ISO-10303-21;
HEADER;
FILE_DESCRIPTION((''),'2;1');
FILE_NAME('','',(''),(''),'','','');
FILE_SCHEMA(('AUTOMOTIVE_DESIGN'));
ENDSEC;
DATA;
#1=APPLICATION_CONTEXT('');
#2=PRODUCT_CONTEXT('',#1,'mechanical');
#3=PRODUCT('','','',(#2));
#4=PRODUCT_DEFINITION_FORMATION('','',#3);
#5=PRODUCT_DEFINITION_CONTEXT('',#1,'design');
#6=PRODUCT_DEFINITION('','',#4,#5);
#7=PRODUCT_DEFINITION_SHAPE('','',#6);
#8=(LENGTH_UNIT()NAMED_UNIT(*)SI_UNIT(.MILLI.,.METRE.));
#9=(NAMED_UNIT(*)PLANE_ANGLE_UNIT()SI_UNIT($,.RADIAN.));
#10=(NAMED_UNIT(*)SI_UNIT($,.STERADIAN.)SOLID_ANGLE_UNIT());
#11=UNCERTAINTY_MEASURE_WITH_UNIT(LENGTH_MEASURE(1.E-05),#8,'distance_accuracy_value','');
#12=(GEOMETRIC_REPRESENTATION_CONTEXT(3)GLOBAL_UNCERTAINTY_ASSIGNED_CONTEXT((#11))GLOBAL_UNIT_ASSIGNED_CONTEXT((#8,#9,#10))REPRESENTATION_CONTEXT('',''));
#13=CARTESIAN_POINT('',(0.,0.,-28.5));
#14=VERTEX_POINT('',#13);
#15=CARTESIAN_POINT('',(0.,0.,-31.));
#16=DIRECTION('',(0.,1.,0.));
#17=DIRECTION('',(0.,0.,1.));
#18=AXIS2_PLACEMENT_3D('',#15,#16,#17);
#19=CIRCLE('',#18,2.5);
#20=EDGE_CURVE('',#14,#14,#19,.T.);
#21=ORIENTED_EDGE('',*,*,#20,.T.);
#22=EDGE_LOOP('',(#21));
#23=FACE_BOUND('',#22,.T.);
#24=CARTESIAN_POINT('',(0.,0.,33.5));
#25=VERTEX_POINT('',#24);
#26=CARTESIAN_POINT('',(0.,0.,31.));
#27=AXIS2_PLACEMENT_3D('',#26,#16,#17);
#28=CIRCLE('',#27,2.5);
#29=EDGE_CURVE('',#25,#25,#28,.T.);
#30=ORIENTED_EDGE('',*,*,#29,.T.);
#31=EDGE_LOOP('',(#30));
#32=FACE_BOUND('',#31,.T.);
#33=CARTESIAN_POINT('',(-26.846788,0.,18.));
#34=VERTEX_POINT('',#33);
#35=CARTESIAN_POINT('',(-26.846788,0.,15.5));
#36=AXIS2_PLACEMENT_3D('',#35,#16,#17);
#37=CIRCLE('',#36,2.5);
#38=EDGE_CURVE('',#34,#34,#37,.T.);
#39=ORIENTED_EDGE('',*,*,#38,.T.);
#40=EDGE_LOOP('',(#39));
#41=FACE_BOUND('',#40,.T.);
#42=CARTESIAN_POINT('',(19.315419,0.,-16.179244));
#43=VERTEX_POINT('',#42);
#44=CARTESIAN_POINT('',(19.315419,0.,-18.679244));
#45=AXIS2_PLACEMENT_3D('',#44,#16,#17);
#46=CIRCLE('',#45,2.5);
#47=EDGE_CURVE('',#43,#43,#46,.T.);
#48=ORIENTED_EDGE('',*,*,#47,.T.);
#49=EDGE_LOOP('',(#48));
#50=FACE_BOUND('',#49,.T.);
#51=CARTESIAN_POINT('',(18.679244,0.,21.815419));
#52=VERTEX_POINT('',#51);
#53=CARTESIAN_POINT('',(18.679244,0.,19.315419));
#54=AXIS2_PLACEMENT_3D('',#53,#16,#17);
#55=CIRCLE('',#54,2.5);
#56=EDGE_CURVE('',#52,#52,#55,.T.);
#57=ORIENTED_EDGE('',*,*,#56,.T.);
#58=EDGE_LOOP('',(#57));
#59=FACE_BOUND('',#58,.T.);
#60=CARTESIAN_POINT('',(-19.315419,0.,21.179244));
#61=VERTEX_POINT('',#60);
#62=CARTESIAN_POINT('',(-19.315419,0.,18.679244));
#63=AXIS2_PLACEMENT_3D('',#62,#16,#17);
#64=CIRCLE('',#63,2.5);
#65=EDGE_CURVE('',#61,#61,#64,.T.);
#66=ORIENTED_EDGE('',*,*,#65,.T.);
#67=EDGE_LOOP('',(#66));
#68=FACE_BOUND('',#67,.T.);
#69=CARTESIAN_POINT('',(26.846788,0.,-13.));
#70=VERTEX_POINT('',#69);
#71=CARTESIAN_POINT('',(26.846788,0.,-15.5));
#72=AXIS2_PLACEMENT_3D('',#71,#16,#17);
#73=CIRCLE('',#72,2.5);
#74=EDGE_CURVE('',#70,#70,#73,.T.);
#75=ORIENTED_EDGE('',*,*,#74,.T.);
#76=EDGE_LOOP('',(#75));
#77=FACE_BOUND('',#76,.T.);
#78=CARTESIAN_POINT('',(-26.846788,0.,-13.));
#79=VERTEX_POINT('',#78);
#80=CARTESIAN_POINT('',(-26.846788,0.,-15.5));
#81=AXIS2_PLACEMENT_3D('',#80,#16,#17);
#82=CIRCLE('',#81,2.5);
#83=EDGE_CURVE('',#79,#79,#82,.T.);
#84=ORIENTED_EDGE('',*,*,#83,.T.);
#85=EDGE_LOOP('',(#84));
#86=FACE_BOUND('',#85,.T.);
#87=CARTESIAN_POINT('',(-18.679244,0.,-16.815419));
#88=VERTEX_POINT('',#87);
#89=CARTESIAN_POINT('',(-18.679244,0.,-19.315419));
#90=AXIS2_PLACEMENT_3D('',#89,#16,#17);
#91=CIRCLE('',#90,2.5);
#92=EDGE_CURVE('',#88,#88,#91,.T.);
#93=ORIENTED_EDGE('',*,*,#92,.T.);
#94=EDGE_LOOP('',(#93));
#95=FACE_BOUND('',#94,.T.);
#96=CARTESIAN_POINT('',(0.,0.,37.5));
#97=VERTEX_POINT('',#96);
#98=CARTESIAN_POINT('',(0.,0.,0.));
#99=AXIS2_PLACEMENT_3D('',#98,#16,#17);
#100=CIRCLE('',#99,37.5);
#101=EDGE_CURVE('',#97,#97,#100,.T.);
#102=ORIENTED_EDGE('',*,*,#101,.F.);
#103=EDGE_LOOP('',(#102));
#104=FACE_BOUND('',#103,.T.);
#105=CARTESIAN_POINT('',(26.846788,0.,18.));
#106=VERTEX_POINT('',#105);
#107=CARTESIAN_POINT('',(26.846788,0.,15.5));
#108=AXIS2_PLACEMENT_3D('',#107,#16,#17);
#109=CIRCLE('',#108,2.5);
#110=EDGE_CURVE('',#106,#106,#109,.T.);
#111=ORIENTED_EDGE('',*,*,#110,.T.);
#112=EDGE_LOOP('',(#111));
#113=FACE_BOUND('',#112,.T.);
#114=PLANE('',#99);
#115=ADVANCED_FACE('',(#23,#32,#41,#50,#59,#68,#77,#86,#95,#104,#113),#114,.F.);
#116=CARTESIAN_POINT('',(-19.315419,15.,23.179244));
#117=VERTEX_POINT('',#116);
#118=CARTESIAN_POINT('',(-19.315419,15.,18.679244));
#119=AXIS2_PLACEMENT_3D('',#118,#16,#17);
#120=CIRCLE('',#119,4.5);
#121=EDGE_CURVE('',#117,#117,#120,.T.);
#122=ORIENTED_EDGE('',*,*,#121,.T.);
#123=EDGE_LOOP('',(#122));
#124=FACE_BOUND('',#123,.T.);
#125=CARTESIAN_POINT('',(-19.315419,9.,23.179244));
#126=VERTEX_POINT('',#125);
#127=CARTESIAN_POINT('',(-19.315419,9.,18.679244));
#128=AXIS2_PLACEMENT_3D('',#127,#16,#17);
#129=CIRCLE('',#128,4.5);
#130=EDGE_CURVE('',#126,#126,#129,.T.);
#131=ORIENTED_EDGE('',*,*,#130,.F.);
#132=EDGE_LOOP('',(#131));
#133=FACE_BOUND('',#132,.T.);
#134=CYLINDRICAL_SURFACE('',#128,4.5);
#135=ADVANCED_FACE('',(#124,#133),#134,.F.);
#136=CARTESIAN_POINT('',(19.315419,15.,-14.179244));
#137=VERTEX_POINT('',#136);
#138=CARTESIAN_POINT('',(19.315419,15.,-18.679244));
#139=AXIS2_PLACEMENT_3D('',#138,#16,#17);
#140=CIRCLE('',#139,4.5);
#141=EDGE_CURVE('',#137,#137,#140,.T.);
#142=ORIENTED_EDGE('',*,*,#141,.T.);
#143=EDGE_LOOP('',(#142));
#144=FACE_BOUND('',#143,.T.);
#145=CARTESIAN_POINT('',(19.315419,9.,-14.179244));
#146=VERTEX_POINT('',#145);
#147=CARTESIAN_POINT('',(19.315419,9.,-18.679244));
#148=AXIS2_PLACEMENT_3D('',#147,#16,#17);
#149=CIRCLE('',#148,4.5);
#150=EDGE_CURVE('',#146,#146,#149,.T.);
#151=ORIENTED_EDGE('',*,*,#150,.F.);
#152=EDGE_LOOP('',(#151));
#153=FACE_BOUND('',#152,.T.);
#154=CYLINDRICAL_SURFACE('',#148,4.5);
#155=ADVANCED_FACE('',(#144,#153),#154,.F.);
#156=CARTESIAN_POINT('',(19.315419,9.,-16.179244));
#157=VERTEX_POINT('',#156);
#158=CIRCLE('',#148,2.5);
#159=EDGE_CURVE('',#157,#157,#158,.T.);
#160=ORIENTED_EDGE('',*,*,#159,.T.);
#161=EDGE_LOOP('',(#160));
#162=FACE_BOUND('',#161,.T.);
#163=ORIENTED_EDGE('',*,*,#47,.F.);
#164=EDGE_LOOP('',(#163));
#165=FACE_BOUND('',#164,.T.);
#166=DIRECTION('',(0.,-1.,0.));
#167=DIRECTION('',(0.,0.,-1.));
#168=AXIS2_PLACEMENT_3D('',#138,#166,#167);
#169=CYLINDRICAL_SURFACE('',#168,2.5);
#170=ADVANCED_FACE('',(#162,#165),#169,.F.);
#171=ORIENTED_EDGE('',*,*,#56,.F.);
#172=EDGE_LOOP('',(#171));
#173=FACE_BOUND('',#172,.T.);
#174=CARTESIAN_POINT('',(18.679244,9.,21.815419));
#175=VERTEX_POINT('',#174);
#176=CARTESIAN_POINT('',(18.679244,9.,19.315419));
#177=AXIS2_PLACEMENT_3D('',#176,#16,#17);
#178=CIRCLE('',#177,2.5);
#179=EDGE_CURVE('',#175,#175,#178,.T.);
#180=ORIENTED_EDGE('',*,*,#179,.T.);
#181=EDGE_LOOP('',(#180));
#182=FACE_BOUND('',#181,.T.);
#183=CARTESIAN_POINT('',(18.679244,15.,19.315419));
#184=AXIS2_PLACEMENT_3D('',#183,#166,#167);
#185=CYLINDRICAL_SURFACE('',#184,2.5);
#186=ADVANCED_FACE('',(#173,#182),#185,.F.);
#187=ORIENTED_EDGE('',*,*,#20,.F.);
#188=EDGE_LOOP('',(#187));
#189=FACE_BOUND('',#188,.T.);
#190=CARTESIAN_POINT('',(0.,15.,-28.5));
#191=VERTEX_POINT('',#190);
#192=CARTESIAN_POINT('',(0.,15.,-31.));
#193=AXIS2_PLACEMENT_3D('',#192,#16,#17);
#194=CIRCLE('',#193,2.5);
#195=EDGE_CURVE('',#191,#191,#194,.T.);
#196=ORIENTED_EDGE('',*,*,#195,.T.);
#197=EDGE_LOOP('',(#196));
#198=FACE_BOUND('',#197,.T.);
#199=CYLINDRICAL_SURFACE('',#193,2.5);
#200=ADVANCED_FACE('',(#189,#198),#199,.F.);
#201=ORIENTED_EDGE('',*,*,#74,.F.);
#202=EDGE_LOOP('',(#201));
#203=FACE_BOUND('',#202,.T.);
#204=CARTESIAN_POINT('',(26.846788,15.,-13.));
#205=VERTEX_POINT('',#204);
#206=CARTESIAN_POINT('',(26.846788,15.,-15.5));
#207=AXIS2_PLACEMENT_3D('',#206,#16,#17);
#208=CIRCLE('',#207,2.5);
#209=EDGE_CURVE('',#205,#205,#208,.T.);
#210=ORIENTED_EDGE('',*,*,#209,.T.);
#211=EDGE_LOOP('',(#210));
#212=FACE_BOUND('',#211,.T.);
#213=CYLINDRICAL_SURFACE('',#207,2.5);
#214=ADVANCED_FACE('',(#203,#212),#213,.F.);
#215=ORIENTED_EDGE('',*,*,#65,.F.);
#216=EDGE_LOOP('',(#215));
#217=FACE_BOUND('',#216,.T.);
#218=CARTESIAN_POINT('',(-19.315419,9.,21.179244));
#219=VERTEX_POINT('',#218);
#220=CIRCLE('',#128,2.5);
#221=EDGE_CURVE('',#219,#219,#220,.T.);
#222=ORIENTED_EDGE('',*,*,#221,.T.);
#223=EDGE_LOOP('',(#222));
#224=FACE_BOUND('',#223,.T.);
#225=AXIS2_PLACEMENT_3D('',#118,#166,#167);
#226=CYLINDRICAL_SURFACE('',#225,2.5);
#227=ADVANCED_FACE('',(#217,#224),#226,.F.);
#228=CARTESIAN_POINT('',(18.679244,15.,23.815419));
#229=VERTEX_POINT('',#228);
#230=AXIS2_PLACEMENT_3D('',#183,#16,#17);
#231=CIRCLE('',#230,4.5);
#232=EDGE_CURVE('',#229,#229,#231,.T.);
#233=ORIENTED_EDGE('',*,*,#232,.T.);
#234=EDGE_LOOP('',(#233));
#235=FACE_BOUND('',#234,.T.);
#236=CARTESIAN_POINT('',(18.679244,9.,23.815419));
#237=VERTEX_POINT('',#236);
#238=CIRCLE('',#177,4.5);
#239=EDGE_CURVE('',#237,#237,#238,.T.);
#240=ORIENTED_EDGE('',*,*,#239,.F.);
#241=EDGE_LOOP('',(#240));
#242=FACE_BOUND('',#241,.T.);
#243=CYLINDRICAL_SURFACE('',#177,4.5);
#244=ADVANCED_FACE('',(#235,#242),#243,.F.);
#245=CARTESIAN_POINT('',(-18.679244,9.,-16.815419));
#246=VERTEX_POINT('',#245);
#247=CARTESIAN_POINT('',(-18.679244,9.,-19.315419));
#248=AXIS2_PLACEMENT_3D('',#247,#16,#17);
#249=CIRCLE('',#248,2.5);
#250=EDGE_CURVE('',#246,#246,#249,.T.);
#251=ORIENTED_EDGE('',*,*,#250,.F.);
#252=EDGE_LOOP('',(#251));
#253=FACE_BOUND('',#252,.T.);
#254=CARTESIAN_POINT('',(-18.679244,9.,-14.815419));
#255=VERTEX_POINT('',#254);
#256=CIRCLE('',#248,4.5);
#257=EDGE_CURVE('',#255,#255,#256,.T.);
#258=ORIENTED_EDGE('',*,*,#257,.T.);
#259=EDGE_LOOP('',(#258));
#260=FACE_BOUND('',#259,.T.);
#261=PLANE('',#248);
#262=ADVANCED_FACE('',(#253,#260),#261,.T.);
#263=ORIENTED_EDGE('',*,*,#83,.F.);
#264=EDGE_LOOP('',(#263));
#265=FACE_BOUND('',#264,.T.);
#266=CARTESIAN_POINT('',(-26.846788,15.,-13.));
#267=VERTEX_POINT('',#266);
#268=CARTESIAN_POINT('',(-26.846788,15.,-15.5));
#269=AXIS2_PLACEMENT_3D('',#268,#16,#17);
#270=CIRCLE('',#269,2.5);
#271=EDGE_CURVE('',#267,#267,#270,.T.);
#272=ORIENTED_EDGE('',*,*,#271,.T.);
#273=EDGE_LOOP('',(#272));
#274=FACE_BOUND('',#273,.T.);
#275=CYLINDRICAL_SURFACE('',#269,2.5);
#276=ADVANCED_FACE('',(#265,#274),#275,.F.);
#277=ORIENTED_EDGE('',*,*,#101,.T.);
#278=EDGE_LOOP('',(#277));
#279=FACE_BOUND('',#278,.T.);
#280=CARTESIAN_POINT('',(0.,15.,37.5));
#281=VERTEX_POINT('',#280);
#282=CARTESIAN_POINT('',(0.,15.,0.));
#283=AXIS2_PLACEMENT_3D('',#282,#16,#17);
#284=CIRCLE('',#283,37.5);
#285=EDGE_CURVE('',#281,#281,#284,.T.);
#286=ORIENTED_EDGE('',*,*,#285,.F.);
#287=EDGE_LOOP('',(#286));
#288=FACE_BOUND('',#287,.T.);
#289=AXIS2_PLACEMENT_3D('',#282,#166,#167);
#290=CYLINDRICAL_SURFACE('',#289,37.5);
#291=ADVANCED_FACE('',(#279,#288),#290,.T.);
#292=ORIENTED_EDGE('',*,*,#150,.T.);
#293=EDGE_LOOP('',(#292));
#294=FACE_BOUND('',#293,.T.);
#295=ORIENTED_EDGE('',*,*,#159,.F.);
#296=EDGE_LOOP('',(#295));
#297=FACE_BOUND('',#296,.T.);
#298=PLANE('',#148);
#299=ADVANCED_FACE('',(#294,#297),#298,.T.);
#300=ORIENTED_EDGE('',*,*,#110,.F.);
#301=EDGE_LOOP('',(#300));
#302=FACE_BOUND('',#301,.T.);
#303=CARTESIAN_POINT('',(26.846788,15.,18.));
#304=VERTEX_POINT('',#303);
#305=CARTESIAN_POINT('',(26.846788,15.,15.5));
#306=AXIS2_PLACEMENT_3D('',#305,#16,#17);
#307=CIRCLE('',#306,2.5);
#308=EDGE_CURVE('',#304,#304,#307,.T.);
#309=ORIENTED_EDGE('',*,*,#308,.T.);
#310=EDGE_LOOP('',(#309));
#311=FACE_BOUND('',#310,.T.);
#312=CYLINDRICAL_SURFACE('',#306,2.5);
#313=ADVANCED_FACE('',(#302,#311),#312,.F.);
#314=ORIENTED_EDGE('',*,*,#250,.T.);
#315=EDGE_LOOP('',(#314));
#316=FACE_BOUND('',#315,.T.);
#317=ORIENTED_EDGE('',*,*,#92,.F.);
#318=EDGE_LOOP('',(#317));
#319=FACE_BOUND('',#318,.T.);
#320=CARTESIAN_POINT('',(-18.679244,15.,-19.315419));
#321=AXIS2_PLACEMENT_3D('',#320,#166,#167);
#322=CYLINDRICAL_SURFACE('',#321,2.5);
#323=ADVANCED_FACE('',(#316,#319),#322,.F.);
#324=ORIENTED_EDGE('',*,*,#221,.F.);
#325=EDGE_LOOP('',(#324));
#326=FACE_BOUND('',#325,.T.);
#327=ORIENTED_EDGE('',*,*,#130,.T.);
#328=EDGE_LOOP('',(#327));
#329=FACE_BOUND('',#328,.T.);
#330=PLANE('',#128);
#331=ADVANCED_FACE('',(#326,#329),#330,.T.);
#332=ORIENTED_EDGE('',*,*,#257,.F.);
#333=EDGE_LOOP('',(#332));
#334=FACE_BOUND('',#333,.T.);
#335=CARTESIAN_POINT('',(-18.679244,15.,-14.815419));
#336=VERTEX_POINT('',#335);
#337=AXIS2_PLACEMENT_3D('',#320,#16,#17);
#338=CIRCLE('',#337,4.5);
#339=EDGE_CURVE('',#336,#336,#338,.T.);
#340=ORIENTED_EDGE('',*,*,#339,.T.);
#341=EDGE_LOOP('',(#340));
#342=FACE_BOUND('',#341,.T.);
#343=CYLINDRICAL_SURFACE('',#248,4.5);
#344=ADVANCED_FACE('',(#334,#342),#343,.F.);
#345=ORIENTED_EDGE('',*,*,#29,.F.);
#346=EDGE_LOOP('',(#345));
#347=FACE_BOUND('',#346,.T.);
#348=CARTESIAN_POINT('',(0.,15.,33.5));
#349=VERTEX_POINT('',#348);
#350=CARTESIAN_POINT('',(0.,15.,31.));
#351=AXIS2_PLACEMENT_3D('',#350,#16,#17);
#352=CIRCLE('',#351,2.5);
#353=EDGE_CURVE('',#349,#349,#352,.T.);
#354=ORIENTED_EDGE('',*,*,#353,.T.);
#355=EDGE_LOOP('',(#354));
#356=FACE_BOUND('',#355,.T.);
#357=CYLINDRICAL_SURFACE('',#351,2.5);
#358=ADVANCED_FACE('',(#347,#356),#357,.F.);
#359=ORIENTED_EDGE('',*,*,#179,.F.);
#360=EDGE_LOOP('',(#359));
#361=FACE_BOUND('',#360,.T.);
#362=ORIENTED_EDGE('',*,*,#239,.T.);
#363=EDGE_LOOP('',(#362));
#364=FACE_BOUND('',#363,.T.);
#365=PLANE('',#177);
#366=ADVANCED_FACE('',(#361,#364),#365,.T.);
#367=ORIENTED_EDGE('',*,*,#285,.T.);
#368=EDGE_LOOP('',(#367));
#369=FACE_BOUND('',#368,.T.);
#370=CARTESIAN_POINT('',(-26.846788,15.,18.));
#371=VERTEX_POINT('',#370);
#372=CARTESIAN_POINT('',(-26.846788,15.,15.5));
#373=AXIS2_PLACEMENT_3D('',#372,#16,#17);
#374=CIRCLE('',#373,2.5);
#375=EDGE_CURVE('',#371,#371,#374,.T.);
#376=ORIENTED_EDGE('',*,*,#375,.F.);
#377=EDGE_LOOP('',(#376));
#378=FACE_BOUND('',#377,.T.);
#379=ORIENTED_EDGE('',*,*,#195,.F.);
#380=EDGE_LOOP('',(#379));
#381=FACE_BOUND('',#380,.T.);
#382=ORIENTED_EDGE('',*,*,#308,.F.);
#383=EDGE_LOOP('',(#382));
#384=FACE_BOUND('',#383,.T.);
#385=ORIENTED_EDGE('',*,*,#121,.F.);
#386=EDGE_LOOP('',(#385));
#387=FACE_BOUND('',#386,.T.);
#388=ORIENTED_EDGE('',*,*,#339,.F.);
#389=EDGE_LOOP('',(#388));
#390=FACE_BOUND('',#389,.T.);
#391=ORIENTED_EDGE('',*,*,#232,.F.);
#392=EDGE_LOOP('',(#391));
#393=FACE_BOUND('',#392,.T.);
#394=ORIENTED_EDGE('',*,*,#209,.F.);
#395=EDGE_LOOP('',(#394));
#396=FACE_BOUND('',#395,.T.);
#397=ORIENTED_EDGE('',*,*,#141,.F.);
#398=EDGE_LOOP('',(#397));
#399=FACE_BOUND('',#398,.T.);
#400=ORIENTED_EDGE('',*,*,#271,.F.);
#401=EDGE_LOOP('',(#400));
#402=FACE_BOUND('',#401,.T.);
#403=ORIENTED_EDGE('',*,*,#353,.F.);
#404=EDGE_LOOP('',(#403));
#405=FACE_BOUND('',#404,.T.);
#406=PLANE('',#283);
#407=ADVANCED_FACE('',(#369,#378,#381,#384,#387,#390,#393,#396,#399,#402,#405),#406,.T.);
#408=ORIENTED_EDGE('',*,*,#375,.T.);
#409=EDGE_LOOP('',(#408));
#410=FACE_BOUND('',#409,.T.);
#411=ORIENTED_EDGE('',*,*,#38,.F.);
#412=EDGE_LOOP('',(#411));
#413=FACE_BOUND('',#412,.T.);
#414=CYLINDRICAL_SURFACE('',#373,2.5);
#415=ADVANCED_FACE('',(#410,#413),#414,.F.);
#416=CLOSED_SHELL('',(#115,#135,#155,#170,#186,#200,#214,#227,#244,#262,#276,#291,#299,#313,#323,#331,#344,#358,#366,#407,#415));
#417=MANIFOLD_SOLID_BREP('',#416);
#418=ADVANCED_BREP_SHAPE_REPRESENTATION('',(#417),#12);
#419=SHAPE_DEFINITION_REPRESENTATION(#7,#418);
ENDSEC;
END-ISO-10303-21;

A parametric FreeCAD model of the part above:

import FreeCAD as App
import Part
import Sketcher
from FreeCAD import Vector

doc = App.newDocument("Part")
body = doc.addObject("PartDesign::Body", "Body")

# Sketch on XZ plane
sketch1 = body.newObject("Sketcher::SketchObject", "Sketch")
sketch1.AttachmentSupport = (doc.getObject("XZ_Plane"), [""])
sketch1.MapMode = "FlatFace"
sketch1.addGeometry([
    Part.Circle(Vector(0, 0, 0), Vector(0, 0, 1), 37.5),  # 0
    Part.Circle(Vector(-19.3, 18.7, 0), Vector(0, 0, 1), 2.5),  # 1
    Part.Circle(Vector(18.7, 19.3, 0), Vector(0, 0, 1), 2.5),  # 2
    Part.Circle(Vector(-18.7, -19.3, 0), Vector(0, 0, 1), 2.5),  # 3
    Part.Circle(Vector(19.3, -18.7, 0), Vector(0, 0, 1), 2.5),  # 4
], False)
sketch1.addConstraint([
    Sketcher.Constraint("Coincident", 0, 3, -1, 1),
    Sketcher.Constraint("Equal", 1, 2),
    Sketcher.Constraint("Equal", 2, 3),
    Sketcher.Constraint("Equal", 3, 4),
    Sketcher.Constraint("Symmetric", 2, 3, 3, 3, -1, 1),
    Sketcher.Constraint("Symmetric", 1, 3, 4, 3, -1, 1),
    Sketcher.Constraint("Diameter", 0, 75.0),
    Sketcher.Constraint("Diameter", 1, 5.0),
    Sketcher.Constraint("DistanceX", 1, 3, -1, 1, 19.315419),
    Sketcher.Constraint("DistanceY", -1, 1, 2, 3, 19.315419),
    Sketcher.Constraint("DistanceX", 3, 3, 2, 3, 37.358488),
    Sketcher.Constraint("DistanceY", 4, 3, 1, 3, 37.358488),
])
pad1 = body.newObject("PartDesign::Pad", "Pad")
pad1.Profile = sketch1
pad1.Length = 15
pad1.Reversed = True

# Sketch on XZ plane
sketch2 = body.newObject("Sketcher::SketchObject", "Sketch001")
sketch2.AttachmentSupport = (doc.getObject("XZ_Plane"), [""])
sketch2.MapMode = "FlatFace"
sketch2.AttachmentOffset = App.Placement(Vector(0, 0, -15), App.Rotation())
sketch2.addGeometry([
    Part.Circle(Vector(-18.7, -19.3, 0), Vector(0, 0, 1), 4.5),
    Part.Circle(Vector(19.3, -18.7, 0), Vector(0, 0, 1), 4.5),
    Part.Circle(Vector(18.7, 19.3, 0), Vector(0, 0, 1), 4.5),
    Part.Circle(Vector(-19.3, 18.7, 0), Vector(0, 0, 1), 4.5),
], False)
sketch2.addConstraint([
    Sketcher.Constraint("Equal", 0, 1),
    Sketcher.Constraint("Equal", 1, 2),
    Sketcher.Constraint("Equal", 2, 3),
    Sketcher.Constraint("Symmetric", 0, 3, 2, 3, -1, 1),
    Sketcher.Constraint("Symmetric", 1, 3, 3, 3, -1, 1),
    Sketcher.Constraint("Diameter", 0, 9.0),
    Sketcher.Constraint("DistanceY", 0, 3, -1, 1, 19.315419),
    Sketcher.Constraint("DistanceX", -1, 1, 1, 3, 19.315419),
    Sketcher.Constraint("DistanceX", 0, 3, 2, 3, 37.358488),
    Sketcher.Constraint("DistanceY", 1, 3, 3, 3, 37.358488),
])
pocket1 = body.newObject("PartDesign::Pocket", "Pocket")
pocket1.Profile = sketch2
pocket1.Length = 6
pocket1.Reversed = True

# Sketch on XZ plane
sketch3 = body.newObject("Sketcher::SketchObject", "Sketch002")
sketch3.AttachmentSupport = (doc.getObject("XZ_Plane"), [""])
sketch3.MapMode = "FlatFace"
sketch3.AttachmentOffset = App.Placement(Vector(0, 0, -15), App.Rotation())
sketch3.addGeometry([
    Part.Circle(Vector(0, -31, 0), Vector(0, 0, 1), 2.5),  # 0
    Part.Circle(Vector(26.8, -15.5, 0), Vector(0, 0, 1), 2.5),  # 1
    Part.Circle(Vector(26.8, 15.5, 0), Vector(0, 0, 1), 2.5),  # 2
    Part.Circle(Vector(0, 31, 0), Vector(0, 0, 1), 2.5),  # 3
    Part.Circle(Vector(-26.8, 15.5, 0), Vector(0, 0, 1), 2.5),  # 4
    Part.Circle(Vector(-26.8, -15.5, 0), Vector(0, 0, 1), 2.5),  # 5
], False)
sketch3.addConstraint([
    Sketcher.Constraint("Equal", 0, 1),
    Sketcher.Constraint("Equal", 1, 2),
    Sketcher.Constraint("Equal", 2, 3),
    Sketcher.Constraint("Equal", 3, 4),
    Sketcher.Constraint("Equal", 4, 5),
    Sketcher.Constraint("Symmetric", 0, 3, 3, 3, -1, 1),
    Sketcher.Constraint("Symmetric", 1, 3, 4, 3, -1, 1),
    Sketcher.Constraint("Symmetric", 2, 3, 5, 3, -1, 1),
    Sketcher.Constraint("Symmetric", 2, 3, 4, 3, -2),
    Sketcher.Constraint("PointOnObject", 0, 3, -2),
    Sketcher.Constraint("Diameter", 0, 5.0),
    Sketcher.Constraint("DistanceY", 0, 3, -1, 1, 31.0),
    Sketcher.Constraint("DistanceY", 1, 3, 2, 3, 31.0),
    Sketcher.Constraint("DistanceX", -1, 1, 1, 3, 26.846788),
])
doc.recompute()
hole = body.newObject("PartDesign::Hole", "Hole")
hole.Profile = sketch3
hole.ThreadType = "None"
hole.Diameter = 5
hole.DepthType = "ThroughAll"
hole.Reversed = True

doc.recompute()
